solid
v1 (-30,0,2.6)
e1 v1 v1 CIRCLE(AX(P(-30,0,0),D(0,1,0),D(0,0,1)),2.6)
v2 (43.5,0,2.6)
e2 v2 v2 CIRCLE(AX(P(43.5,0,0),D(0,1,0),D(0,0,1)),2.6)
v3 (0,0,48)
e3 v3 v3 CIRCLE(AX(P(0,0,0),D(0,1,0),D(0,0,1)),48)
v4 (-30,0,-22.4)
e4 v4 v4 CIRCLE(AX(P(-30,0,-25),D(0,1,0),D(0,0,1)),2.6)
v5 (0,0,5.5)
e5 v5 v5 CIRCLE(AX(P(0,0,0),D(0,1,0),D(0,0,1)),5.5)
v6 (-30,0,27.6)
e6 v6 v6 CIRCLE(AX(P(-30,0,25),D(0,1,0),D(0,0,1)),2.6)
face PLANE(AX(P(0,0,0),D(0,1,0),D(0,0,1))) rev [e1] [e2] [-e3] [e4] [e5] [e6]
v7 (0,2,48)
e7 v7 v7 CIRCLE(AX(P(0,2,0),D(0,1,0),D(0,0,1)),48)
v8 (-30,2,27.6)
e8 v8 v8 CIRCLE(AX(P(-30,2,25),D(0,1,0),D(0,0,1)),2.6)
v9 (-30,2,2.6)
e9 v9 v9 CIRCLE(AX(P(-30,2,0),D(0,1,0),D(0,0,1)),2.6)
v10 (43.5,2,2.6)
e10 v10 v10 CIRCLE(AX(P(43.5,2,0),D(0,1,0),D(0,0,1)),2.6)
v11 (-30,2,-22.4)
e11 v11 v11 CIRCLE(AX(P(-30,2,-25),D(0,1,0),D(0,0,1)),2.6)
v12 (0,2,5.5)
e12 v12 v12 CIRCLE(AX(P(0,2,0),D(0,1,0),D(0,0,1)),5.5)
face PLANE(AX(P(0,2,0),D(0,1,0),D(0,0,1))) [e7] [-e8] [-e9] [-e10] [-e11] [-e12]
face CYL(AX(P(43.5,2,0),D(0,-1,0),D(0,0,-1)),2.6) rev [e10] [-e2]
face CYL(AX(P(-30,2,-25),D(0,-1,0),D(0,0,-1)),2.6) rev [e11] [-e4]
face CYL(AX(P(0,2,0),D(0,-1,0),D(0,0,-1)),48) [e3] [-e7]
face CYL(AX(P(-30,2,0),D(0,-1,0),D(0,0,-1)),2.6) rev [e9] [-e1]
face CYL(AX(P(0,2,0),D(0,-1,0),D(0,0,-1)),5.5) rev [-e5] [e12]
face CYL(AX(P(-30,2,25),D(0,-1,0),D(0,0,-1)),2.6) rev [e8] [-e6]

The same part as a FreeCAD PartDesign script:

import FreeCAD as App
import Part
import Sketcher

doc = App.newDocument("Part")
params = doc.addObject("Spreadsheet::Sheet", "Params")
for row, (alias, value) in enumerate([
    ("sketch1_diameter", "96 mm"),
    ("sketch1_diameter2", "11 mm"),
    ("sketch1_diameter3", "5.2 mm"),
    ("pad1_length", "2 mm"),
], start=1):
    params.set(f"A{row}", alias)
    params.set(f"B{row}", "=" + value)
    params.setAlias(f"B{row}", alias)

body = doc.addObject("PartDesign::Body", "Body")

sketch1 = body.newObject("Sketcher::SketchObject", "Sketch")
sketch1.AttachmentSupport = (doc.getObject("XZ_Plane"), [""])
sketch1.MapMode = "FlatFace"
sketch1.addGeometry([
    Part.Circle(App.Vector(0, 0, 0), App.Vector(0, 0, 1), 48),
    Part.Circle(App.Vector(-30, -25, 0), App.Vector(0, 0, 1), 2.6),
    Part.Circle(App.Vector(0, 0, 0), App.Vector(0, 0, 1), 5.5),
    Part.Circle(App.Vector(-30, 0, 0), App.Vector(0, 0, 1), 2.6),
    Part.Circle(App.Vector(-30, 25, 0), App.Vector(0, 0, 1), 2.6),
    Part.Circle(App.Vector(43.5, 0, 0), App.Vector(0, 0, 1), 2.6),
], False)
sketch1.addConstraint([
    Sketcher.Constraint("Coincident", 0, 3, -1, 1),
    Sketcher.Constraint("Coincident", 2, 3, -1, 1),
    Sketcher.Constraint("Equal", 1, 3),
    Sketcher.Constraint("Equal", 3, 4),
    Sketcher.Constraint("Equal", 4, 5),
    Sketcher.Constraint("Symmetric", 1, 3, 4, 3, -1),
    Sketcher.Constraint("PointOnObject", 3, 3, -1),
    Sketcher.Constraint("PointOnObject", 5, 3, -1),
    Sketcher.Constraint("Vertical", 1, 3, 3, 3),
    Sketcher.Constraint("Diameter", 0, 96.0),
    Sketcher.Constraint("Diameter", 2, 11.0),
    Sketcher.Constraint("Diameter", 1, 5.2),
    Sketcher.Constraint("DistanceX", 1, 3, -1, 1, 30.0),
    Sketcher.Constraint("DistanceY", 1, 3, -1, 1, 25.0),
    Sketcher.Constraint("DistanceX", -1, 1, 5, 3, 43.5),
])
sketch1.setExpression("Constraints[9]", "Params.sketch1_diameter")
sketch1.setExpression("Constraints[10]", "Params.sketch1_diameter2")
sketch1.setExpression("Constraints[11]", "Params.sketch1_diameter3")
pad1 = body.newObject("PartDesign::Pad", "Pad")
pad1.Profile = sketch1
pad1.setExpression("Length", "Params.pad1_length")
pad1.Reversed = True

doc.recompute()
